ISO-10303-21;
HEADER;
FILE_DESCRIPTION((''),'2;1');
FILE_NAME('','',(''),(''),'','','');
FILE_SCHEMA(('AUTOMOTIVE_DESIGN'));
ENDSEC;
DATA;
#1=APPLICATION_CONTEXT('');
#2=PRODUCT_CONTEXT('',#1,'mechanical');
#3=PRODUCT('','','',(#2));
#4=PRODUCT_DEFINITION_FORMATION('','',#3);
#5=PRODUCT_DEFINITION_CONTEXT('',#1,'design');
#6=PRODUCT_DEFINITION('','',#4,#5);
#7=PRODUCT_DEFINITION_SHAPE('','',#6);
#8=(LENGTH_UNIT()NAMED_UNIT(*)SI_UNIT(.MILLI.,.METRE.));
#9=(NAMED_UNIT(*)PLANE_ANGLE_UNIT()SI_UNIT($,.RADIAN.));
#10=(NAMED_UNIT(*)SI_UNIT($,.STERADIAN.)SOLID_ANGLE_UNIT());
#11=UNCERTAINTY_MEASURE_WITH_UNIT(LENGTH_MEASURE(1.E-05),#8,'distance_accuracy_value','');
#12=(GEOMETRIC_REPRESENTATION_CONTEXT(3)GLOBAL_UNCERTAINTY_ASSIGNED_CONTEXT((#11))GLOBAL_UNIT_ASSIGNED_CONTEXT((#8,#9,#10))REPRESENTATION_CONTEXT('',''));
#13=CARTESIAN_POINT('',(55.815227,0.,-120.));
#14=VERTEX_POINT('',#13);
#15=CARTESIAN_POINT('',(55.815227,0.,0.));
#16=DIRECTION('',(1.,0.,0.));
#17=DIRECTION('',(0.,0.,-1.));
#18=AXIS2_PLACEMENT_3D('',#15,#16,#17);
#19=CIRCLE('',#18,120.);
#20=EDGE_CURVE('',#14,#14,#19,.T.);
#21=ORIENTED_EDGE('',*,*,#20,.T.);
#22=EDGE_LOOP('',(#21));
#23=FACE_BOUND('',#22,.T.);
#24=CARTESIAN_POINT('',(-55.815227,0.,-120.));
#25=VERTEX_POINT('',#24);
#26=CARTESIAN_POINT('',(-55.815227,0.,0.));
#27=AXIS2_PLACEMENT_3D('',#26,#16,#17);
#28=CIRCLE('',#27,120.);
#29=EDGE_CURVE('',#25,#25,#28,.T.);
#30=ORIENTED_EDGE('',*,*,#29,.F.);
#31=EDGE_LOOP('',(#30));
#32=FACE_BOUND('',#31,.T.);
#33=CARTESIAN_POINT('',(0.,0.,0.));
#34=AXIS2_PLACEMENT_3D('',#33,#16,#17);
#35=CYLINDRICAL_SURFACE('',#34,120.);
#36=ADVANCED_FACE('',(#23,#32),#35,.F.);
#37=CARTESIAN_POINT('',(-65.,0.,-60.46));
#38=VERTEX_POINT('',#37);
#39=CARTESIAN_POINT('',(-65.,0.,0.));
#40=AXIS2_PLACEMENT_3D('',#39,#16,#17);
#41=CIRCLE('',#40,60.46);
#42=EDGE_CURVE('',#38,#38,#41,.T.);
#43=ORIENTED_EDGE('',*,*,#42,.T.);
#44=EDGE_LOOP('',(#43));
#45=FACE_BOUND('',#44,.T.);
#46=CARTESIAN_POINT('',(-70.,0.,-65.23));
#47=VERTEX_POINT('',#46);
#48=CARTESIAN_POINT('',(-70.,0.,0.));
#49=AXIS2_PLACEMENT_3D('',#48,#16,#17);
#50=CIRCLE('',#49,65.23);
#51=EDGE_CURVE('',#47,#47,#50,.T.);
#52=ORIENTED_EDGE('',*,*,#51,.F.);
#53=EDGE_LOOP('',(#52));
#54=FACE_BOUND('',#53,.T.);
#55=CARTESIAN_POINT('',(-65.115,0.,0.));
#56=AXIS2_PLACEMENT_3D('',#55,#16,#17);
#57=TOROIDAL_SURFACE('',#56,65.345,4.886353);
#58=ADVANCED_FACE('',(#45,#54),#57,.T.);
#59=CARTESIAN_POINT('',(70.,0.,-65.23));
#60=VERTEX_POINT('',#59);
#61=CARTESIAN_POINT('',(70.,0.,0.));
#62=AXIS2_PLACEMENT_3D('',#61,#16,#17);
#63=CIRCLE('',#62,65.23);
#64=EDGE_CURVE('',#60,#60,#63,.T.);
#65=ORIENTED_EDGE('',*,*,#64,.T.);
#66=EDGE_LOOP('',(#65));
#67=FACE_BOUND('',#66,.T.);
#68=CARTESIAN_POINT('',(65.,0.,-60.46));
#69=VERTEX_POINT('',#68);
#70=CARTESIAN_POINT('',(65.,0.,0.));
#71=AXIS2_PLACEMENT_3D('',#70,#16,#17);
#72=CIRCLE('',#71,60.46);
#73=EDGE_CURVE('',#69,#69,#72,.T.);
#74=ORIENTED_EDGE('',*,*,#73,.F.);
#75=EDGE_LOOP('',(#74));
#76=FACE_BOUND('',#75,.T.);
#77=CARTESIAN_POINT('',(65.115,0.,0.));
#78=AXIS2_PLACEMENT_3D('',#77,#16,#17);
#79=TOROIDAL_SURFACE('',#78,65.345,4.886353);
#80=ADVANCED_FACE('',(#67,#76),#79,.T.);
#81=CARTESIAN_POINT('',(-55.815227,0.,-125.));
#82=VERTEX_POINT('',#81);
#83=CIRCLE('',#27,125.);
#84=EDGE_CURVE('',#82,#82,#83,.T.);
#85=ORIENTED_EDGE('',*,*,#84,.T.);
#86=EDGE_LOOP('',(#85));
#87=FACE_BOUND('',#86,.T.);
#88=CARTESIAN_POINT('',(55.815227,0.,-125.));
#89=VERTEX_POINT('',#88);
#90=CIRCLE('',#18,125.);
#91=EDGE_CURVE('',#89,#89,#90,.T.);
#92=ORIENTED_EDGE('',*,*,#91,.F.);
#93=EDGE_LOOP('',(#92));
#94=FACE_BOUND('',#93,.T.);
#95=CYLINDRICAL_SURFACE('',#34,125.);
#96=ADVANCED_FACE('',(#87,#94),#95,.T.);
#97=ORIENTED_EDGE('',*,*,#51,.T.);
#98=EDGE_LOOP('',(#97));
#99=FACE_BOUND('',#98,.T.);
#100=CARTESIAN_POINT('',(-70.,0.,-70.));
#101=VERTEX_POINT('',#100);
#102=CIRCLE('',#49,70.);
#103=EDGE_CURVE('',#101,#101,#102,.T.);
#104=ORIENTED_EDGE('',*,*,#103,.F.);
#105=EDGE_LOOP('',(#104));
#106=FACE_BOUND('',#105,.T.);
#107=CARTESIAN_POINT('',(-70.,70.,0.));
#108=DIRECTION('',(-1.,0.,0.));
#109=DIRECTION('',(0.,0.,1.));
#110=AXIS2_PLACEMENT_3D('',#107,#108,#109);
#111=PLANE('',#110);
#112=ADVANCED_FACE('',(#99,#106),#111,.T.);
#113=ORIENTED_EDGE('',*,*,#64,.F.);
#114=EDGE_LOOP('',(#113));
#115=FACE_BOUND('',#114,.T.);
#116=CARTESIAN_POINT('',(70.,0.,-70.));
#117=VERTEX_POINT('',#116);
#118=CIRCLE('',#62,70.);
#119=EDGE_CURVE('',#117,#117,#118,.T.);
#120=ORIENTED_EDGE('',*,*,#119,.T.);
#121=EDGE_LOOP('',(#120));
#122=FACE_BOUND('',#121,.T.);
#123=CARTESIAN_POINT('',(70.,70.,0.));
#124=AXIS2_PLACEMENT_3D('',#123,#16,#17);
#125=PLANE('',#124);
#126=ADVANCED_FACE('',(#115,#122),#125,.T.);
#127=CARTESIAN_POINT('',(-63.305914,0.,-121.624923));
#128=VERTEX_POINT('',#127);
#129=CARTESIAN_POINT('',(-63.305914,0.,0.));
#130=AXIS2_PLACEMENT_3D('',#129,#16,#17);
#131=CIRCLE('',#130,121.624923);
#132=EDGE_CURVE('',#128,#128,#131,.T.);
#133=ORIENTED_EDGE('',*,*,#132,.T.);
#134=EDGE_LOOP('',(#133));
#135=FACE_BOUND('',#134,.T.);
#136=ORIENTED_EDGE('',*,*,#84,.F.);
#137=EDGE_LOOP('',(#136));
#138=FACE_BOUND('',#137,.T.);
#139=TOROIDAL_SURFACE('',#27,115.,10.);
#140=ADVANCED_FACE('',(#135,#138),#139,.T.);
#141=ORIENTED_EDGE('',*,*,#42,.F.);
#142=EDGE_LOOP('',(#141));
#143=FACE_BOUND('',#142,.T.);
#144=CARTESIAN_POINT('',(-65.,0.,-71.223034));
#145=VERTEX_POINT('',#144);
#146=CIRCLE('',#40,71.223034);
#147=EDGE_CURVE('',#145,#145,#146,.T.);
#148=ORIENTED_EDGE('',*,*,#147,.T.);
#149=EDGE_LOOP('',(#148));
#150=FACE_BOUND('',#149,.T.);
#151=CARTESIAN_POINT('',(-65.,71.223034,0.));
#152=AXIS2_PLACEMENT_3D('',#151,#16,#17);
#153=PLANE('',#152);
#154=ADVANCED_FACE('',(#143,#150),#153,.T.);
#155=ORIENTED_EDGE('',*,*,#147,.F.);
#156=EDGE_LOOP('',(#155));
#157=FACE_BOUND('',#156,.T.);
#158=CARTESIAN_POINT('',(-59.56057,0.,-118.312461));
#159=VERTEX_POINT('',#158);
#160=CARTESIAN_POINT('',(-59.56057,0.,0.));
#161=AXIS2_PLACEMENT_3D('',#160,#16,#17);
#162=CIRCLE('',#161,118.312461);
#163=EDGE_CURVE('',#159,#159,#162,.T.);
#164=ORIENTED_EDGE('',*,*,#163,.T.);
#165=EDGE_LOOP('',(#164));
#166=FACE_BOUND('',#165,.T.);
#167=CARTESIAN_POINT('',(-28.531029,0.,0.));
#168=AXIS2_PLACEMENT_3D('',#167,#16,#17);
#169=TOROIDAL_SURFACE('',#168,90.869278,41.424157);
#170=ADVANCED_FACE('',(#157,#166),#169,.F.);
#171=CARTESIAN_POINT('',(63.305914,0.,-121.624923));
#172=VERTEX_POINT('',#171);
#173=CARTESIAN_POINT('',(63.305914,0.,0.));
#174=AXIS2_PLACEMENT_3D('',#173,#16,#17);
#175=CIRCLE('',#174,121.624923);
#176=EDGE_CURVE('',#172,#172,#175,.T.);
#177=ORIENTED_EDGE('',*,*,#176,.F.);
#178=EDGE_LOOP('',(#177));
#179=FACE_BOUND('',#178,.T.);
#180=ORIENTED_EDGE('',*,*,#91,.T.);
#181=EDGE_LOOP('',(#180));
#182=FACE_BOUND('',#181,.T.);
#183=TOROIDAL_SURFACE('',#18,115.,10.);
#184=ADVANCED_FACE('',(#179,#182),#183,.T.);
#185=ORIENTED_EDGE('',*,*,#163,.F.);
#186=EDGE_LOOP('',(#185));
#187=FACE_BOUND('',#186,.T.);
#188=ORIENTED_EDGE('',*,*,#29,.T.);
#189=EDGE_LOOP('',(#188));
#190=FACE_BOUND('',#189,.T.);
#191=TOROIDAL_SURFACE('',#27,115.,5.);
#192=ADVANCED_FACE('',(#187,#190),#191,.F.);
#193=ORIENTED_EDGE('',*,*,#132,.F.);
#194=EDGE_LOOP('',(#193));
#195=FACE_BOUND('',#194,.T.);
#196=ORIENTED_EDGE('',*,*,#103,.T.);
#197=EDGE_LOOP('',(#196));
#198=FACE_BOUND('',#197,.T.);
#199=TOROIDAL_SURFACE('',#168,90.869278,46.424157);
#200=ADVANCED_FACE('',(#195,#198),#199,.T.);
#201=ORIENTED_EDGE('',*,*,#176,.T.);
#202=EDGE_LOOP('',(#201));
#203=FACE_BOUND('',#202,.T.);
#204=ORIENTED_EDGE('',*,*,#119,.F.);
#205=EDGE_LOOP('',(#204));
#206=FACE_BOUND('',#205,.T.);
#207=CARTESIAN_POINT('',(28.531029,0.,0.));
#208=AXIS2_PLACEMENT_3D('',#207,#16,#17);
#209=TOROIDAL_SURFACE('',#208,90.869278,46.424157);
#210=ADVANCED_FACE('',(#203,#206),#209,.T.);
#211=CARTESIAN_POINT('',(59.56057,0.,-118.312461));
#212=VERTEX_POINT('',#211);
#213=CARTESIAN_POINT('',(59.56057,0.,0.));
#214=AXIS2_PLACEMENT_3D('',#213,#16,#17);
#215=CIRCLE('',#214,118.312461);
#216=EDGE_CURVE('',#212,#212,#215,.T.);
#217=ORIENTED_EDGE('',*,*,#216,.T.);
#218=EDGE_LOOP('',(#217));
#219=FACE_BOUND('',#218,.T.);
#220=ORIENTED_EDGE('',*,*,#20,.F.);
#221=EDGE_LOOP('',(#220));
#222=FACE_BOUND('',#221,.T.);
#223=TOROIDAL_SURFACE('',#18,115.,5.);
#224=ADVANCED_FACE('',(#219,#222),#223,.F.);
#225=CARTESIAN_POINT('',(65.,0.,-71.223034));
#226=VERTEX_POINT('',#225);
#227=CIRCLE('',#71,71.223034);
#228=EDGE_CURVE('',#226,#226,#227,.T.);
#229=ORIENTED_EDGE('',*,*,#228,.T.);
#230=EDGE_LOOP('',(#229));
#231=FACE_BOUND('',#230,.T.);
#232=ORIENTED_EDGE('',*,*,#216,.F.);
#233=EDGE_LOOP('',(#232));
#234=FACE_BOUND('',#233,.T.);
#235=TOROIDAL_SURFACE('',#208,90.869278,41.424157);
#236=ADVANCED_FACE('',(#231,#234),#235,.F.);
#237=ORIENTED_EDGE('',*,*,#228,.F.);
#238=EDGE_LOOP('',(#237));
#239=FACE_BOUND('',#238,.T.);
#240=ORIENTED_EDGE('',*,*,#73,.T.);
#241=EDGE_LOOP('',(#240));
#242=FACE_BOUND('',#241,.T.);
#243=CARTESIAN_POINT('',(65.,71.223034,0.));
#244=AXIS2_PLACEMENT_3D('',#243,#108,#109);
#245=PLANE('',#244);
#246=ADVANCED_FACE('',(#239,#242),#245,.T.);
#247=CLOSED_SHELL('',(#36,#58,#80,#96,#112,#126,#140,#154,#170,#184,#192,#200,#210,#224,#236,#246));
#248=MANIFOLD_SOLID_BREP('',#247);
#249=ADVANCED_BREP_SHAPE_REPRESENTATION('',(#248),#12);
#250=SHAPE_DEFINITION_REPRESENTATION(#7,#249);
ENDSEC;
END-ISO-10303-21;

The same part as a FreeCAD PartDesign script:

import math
import FreeCAD as App
import Part
import Sketcher

V = App.Vector
Q = App.Units.Quantity

doc = App.newDocument("Part")
body = doc.addObject("PartDesign::Body", "Body")

# Sketch on XY plane
sketch1 = body.newObject("Sketcher::SketchObject", "Sketch")
sketch1.AttachmentSupport = (doc.getObject("XY_Plane"), [""])
sketch1.MapMode = "FlatFace"
sketch1.addGeometry([
    Part.LineSegment(V(-70, 70, 0), V(-70, 65.2, 0)),  # 0
    Part.ArcOfCircle(Part.Circle(V(-65.1, 65.3, 0), V(0, 0, 1), 4.9), math.radians(-179), math.radians(-89)),  # 1
    Part.LineSegment(V(-65, 60.5, 0), V(-65, 71.2, 0)),  # 2
    Part.ArcOfCircle(Part.Circle(V(-28.5, 90.9, 0), V(0, 0, 1), 41.4), math.radians(139), math.radians(208)),  # 3
    Part.ArcOfCircle(Part.Circle(V(-55.8, 115, 0), V(0, 0, 1), 5), math.radians(90), math.radians(139)),  # 4
    Part.LineSegment(V(-55.8, 120, 0), V(55.8, 120, 0)),  # 5
    Part.ArcOfCircle(Part.Circle(V(55.8, 115, 0), V(0, 0, 1), 5), math.radians(41), math.radians(90)),  # 6
    Part.ArcOfCircle(Part.Circle(V(28.5, 90.9, 0), V(0, 0, 1), 41.4), math.radians(-28), math.radians(41)),  # 7
    Part.LineSegment(V(65, 71.2, 0), V(65, 60.5, 0)),  # 8
    Part.ArcOfCircle(Part.Circle(V(65.1, 65.3, 0), V(0, 0, 1), 4.9), math.radians(-91), math.radians(-1)),  # 9
    Part.LineSegment(V(70, 65.2, 0), V(70, 70, 0)),  # 10
    Part.ArcOfCircle(Part.Circle(V(28.5, 90.9, 0), V(0, 0, 1), 46.4), math.radians(-27), math.radians(41)),  # 11
    Part.ArcOfCircle(Part.Circle(V(55.8, 115, 0), V(0, 0, 1), 10), math.radians(41), math.radians(90)),  # 12
    Part.LineSegment(V(55.8, 125, 0), V(-55.8, 125, 0)),  # 13
    Part.ArcOfCircle(Part.Circle(V(-55.8, 115, 0), V(0, 0, 1), 10), math.radians(90), math.radians(139)),  # 14
    Part.ArcOfCircle(Part.Circle(V(-28.5, 90.9, 0), V(0, 0, 1), 46.4), math.radians(139), math.radians(207)),  # 15
], False)
sketch1.addConstraint([
    Sketcher.Constraint("Coincident", 0, 2, 1, 1),
    Sketcher.Constraint("Coincident", 1, 2, 2, 1),
    Sketcher.Constraint("Coincident", 2, 2, 3, 2),
    Sketcher.Constraint("Tangent", 3, 1, 4, 2),
    Sketcher.Constraint("Tangent", 4, 1, 5, 1),
    Sketcher.Constraint("Tangent", 5, 2, 6, 2),
    Sketcher.Constraint("Tangent", 6, 1, 7, 2),
    Sketcher.Constraint("Coincident", 7, 1, 8, 1),
    Sketcher.Constraint("Coincident", 8, 2, 9, 1),
    Sketcher.Constraint("Coincident", 9, 2, 10, 1),
    Sketcher.Constraint("Coincident", 10, 2, 11, 1),
    Sketcher.Constraint("Tangent", 11, 2, 12, 1),
    Sketcher.Constraint("Tangent", 12, 2, 13, 1),
    Sketcher.Constraint("Tangent", 13, 2, 14, 1),
    Sketcher.Constraint("Tangent", 14, 2, 15, 1),
    Sketcher.Constraint("Coincident", 15, 2, 0, 1),
    Sketcher.Constraint("Vertical", 0),
    Sketcher.Constraint("Vertical", 2),
    Sketcher.Constraint("Horizontal", 5),
    Sketcher.Constraint("Vertical", 8),
    Sketcher.Constraint("Vertical", 10),
    Sketcher.Constraint("Horizontal", 13),
    Sketcher.Constraint("Coincident", 11, 3, 7, 3),
    Sketcher.Constraint("Coincident", 12, 3, 6, 3),
    Sketcher.Constraint("Coincident", 14, 3, 4, 3),
    Sketcher.Constraint("Coincident", 15, 3, 3, 3),
    Sketcher.Constraint("Equal", 4, 6),
    Sketcher.Constraint("Equal", 3, 7),
    Sketcher.Constraint("Equal", 1, 9),
    Sketcher.Constraint("Symmetric", 3, 3, 7, 3, -2),
    Sketcher.Constraint("Symmetric", 1, 3, 9, 3, -2),
    Sketcher.Constraint("Horizontal", 2, 2, 7, 1),
    Sketcher.Constraint("Horizontal", 0, 2, 9, 2),
    Sketcher.Constraint("Radius", 4, Q("5 mm")),
    Sketcher.Constraint("Radius", 12, Q("10 mm")),
    Sketcher.Constraint("DistanceY", -1, 1, 4, 3, Q("115 mm")),
    Sketcher.Constraint("DistanceX", 0, 2, -1, 1, Q("70 mm")),
    Sketcher.Constraint("DistanceX", 1, 2, -1, 1, Q("65 mm")),
    Sketcher.Constraint("DistanceY", -1, 1, 10, 2, Q("70 mm")),
    Sketcher.Constraint("DistanceY", 0, 2, 0, 1, Q("4.77 mm")),
    Sketcher.Constraint("DistanceY", -1, 1, 1, 2, Q("60.46 mm")),
    Sketcher.Constraint("DistanceX", 1, 3, 9, 3, Q("130.23 mm")),
    Sketcher.Constraint("Radius", 3, Q("41.424157 mm")),
    Sketcher.Constraint("DistanceX", 5, 1, 5, 2, Q("111.630453 mm")),
])
revolution = body.newObject("PartDesign::Revolution", "Revolution")
revolution.Profile = sketch1
revolution.ReferenceAxis = (sketch1, ["H_Axis"])
revolution.Angle = 360

doc.recompute()
